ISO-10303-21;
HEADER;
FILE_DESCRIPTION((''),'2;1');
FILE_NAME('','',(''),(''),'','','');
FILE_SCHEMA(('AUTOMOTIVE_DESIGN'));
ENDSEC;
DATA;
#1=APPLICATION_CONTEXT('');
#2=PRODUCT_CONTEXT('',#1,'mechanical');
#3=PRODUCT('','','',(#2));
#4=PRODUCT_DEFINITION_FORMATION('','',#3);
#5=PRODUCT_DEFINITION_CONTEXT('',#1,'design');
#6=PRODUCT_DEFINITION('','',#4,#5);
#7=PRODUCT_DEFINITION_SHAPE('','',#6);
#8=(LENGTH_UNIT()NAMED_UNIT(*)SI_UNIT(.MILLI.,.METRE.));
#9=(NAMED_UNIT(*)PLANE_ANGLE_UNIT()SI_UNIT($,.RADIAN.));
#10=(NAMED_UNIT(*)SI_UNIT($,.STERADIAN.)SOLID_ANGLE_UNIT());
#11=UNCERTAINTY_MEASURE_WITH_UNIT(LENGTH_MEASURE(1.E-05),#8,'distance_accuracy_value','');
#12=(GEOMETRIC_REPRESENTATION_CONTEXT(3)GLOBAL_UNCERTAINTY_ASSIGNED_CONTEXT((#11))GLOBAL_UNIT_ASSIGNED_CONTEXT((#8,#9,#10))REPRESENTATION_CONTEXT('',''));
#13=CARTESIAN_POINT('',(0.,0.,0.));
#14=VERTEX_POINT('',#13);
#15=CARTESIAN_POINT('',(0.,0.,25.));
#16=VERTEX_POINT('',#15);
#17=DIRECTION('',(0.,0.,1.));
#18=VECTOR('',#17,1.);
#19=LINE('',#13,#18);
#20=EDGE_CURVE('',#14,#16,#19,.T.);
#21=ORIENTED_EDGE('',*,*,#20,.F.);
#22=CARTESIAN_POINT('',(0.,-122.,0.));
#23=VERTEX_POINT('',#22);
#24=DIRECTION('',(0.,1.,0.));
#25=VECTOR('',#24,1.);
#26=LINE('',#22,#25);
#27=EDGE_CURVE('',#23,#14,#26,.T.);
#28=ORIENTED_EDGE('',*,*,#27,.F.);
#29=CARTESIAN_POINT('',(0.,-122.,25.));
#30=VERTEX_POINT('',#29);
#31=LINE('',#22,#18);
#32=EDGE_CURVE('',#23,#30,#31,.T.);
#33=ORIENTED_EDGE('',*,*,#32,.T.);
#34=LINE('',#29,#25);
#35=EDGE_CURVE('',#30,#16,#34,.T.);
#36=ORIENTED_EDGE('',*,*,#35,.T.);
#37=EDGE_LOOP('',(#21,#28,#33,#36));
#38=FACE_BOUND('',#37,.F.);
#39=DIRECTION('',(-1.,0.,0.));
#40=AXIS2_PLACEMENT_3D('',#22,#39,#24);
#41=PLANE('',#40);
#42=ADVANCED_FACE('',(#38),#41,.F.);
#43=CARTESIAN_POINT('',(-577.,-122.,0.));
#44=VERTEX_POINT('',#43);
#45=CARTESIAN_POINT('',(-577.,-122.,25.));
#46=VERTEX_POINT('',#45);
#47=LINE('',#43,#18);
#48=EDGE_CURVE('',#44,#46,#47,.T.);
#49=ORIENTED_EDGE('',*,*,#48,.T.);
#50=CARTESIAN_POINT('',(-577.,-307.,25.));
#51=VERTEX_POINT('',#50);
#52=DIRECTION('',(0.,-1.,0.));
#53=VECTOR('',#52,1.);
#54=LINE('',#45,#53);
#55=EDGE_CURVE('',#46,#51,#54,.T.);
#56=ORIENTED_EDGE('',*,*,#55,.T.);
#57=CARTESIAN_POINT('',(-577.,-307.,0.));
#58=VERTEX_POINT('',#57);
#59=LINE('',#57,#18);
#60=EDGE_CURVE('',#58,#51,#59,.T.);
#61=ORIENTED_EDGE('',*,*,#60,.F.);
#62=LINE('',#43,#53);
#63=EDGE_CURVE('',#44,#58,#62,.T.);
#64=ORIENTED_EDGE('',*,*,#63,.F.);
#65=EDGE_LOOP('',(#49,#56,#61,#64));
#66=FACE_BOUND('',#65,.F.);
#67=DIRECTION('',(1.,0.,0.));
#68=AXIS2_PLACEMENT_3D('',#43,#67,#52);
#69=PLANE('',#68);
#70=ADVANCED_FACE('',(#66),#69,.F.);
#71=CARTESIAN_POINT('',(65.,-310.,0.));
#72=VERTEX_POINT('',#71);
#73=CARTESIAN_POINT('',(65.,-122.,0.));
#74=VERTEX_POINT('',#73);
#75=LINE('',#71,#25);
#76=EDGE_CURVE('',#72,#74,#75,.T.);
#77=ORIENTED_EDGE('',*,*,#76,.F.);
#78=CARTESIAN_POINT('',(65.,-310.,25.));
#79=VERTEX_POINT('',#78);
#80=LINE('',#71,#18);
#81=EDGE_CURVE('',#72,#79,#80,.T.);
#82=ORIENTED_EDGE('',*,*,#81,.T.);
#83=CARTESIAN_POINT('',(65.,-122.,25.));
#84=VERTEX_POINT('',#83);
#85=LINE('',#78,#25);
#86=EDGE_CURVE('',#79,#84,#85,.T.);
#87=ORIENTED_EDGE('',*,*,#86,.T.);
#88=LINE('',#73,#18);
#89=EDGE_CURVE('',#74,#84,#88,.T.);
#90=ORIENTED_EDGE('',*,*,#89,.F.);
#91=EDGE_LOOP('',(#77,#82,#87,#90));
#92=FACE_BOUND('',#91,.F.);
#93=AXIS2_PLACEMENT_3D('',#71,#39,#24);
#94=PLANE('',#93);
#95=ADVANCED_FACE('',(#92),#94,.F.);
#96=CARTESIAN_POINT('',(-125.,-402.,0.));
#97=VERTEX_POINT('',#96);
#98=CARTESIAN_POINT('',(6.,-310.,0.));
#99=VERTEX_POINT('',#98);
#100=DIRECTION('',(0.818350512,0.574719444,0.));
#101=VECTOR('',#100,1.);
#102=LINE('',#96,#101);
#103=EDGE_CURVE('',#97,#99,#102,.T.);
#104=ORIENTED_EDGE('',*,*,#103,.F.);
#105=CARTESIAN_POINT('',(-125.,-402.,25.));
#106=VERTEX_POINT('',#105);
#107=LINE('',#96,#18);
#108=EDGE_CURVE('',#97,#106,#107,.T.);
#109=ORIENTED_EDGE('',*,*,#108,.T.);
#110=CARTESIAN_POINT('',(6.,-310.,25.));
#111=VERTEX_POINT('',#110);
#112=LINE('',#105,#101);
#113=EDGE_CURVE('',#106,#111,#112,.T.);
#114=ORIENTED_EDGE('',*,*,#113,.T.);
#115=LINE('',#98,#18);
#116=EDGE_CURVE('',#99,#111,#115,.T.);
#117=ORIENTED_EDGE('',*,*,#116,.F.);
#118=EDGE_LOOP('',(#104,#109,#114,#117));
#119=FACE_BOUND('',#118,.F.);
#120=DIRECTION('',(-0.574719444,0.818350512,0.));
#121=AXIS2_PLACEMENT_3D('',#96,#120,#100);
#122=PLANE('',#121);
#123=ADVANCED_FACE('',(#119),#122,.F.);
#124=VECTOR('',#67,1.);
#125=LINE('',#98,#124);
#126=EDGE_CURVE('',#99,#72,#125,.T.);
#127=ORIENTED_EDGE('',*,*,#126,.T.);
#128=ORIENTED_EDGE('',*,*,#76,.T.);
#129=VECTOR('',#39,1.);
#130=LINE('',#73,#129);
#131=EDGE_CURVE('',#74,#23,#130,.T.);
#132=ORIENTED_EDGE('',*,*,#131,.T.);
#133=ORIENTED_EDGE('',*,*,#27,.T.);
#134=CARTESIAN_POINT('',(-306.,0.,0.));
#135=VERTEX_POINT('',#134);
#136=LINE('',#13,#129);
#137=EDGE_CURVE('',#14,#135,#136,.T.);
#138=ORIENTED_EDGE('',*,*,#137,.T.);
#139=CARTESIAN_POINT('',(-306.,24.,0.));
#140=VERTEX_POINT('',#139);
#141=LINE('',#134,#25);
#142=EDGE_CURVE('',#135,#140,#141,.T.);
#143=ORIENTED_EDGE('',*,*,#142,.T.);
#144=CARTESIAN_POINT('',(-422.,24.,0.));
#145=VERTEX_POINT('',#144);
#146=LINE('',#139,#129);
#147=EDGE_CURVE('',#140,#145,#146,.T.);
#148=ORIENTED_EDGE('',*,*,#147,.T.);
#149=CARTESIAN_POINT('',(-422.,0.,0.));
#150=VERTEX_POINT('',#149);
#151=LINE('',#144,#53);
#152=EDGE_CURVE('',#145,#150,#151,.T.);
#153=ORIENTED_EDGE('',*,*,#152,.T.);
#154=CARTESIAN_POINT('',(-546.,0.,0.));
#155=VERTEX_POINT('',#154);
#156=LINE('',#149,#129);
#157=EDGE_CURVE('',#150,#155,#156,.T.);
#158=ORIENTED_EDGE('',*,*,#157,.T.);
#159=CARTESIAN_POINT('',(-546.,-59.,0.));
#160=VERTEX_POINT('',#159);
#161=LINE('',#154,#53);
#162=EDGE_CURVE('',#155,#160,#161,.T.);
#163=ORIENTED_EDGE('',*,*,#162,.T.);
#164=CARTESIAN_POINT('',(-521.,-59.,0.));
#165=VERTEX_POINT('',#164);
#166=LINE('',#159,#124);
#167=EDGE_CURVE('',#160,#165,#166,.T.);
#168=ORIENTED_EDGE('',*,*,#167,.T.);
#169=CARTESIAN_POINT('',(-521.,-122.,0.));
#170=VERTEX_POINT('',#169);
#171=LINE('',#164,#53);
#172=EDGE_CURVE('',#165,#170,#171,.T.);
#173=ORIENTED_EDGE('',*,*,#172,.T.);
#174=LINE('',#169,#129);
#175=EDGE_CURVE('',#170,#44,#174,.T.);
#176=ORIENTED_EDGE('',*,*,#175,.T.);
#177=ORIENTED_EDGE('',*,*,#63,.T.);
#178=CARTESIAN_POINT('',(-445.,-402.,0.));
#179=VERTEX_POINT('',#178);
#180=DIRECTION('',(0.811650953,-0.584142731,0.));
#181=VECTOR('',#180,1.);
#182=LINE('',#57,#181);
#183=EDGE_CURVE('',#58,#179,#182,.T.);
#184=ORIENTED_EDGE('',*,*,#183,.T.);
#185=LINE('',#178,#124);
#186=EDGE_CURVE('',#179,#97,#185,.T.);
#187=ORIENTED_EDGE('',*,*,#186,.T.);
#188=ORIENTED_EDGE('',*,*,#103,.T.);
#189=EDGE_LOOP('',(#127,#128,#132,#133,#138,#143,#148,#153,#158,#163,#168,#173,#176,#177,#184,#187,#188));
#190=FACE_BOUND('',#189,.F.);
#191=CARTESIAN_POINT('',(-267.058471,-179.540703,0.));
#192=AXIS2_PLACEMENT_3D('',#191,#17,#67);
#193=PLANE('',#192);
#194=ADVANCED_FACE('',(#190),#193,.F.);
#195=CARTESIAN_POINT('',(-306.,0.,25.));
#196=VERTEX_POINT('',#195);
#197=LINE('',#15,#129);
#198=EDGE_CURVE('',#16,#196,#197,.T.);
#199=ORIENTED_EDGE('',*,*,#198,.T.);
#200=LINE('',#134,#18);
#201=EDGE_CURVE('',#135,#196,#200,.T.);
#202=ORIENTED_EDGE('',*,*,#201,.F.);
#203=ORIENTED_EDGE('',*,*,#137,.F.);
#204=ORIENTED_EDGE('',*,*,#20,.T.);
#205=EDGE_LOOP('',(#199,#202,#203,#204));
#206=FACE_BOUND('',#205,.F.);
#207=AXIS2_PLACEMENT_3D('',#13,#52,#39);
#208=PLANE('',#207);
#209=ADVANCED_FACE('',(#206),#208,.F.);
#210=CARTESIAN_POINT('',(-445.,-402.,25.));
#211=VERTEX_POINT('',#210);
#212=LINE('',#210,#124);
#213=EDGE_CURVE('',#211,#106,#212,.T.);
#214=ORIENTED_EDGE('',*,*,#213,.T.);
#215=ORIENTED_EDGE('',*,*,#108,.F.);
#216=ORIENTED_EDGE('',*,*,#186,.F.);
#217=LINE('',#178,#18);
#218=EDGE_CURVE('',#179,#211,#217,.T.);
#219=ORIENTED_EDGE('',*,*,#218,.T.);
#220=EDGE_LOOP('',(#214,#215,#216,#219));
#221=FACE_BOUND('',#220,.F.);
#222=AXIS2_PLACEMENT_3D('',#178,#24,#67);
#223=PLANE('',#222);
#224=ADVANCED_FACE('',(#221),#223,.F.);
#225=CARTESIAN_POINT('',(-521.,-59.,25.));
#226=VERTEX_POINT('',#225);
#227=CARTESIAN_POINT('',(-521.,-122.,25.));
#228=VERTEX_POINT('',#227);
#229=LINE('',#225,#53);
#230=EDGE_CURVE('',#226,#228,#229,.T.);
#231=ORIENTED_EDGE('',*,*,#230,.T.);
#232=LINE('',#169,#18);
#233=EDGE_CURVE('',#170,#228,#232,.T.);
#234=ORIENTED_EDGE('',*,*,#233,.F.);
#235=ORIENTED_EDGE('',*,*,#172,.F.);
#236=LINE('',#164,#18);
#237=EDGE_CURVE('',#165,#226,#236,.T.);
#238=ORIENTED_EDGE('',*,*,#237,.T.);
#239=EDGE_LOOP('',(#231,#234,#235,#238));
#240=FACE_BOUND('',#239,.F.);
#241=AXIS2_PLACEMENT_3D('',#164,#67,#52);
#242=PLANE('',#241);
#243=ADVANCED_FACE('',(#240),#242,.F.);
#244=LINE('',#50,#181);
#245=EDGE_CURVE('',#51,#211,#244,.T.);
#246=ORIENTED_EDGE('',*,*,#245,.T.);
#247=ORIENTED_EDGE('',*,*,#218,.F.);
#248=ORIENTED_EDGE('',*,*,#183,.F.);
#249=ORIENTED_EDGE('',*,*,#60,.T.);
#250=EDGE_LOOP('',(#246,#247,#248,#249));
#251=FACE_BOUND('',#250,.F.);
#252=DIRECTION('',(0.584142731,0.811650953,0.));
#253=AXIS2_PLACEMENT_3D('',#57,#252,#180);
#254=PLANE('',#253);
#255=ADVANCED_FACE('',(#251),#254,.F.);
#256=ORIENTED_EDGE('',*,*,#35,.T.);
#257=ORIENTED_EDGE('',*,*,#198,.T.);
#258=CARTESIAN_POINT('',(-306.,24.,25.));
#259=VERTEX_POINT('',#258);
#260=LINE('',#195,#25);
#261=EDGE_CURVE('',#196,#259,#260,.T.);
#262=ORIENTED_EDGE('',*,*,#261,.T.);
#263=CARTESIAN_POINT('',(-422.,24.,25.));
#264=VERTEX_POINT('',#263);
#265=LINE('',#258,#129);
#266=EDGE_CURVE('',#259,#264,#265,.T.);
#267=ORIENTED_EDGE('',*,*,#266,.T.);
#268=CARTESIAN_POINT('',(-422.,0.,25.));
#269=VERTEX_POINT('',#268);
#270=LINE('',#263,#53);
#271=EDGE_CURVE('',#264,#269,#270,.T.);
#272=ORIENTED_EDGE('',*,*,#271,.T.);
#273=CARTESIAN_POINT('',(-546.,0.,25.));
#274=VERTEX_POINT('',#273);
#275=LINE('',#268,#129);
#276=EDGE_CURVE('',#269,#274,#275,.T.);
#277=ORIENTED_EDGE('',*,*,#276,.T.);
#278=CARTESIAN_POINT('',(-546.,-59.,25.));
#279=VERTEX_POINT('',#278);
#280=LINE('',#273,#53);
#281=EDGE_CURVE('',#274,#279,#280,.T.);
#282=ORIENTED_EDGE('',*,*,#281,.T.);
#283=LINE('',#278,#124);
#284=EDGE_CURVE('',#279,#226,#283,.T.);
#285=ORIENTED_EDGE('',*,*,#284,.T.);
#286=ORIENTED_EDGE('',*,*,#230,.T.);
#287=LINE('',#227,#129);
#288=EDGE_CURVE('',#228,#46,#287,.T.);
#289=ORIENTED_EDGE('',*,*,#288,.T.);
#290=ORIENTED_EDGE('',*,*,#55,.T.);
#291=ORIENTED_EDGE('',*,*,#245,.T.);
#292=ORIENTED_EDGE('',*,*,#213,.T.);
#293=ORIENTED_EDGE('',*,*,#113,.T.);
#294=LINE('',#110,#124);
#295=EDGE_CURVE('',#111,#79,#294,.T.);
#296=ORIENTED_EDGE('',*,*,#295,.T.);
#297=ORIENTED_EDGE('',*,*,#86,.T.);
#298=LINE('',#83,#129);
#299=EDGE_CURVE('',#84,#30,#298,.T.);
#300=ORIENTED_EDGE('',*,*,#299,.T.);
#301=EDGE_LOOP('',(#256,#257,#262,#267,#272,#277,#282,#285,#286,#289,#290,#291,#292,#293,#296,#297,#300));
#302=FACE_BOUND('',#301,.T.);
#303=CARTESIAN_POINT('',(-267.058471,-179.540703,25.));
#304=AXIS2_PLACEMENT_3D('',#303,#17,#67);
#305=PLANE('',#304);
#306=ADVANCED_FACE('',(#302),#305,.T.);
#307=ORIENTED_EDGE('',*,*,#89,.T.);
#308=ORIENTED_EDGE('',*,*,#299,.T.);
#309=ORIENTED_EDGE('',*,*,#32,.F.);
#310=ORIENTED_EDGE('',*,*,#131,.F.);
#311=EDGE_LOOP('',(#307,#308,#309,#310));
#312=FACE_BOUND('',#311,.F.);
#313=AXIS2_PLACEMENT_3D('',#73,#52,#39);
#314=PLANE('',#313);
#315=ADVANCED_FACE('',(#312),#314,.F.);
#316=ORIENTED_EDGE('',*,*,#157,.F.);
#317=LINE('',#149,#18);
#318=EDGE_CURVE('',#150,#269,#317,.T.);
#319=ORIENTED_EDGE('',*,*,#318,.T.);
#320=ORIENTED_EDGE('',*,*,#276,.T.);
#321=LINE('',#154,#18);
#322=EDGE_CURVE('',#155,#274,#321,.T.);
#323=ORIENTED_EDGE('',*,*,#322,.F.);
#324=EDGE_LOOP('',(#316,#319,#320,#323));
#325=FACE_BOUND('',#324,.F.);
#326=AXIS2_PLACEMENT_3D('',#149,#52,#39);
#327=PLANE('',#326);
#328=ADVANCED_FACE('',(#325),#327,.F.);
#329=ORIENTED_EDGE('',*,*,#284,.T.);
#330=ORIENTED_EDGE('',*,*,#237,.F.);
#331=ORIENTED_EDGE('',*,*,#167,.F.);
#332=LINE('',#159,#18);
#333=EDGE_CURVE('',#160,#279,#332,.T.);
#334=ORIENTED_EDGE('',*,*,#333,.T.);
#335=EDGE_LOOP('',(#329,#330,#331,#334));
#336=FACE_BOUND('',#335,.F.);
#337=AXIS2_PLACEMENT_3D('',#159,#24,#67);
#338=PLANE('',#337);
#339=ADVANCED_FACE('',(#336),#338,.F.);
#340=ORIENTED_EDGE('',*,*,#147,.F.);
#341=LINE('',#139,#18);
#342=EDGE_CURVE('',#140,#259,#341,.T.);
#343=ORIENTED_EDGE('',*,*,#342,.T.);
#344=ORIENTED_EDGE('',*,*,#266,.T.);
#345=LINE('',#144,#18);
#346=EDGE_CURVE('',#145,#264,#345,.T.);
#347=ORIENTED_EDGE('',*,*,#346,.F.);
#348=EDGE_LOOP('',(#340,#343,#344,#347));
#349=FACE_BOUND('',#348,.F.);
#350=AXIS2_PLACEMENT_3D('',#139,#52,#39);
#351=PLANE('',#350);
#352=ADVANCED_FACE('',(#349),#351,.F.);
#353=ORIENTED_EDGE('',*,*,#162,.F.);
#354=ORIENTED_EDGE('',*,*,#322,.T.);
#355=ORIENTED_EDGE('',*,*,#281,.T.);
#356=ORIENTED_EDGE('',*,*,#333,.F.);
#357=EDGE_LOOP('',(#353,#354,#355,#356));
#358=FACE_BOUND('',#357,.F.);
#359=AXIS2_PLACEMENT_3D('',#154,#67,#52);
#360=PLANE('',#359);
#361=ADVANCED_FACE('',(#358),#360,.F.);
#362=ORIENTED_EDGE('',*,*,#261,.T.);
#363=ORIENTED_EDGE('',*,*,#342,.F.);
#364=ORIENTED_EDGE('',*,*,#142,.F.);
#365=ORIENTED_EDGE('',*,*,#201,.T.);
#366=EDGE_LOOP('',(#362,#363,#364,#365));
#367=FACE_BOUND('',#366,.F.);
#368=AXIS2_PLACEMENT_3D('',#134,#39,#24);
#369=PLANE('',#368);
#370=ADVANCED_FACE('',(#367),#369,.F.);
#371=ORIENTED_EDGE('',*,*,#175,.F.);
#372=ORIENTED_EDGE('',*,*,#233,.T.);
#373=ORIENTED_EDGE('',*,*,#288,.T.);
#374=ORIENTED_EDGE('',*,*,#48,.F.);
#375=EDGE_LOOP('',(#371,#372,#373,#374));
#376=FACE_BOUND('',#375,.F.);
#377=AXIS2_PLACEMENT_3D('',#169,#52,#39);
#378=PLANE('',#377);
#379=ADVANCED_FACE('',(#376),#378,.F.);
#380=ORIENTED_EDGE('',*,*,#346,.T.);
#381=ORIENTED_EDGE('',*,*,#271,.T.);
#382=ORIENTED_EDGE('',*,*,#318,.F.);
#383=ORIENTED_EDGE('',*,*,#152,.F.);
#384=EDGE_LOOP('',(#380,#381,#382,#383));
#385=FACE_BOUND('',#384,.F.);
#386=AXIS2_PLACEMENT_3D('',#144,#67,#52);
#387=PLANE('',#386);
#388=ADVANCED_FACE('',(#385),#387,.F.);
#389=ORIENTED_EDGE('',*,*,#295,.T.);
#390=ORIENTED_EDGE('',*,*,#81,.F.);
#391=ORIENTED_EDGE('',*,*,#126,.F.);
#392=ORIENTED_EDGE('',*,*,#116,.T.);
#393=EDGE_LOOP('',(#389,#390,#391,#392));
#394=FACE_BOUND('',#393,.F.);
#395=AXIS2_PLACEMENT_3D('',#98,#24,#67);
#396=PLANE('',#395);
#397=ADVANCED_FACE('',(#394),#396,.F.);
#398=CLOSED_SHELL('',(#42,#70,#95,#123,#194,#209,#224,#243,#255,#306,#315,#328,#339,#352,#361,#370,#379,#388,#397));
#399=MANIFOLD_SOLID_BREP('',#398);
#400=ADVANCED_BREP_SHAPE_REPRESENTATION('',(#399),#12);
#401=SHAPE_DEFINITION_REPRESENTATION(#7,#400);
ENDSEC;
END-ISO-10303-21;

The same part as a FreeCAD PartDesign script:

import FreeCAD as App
import Part
import Sketcher
Q = App.Units.Quantity

doc = App.newDocument("Part")
body = doc.addObject("PartDesign::Body", "Body")

# Sketch on XY plane
sketch1 = doc.addObject("Sketcher::SketchObject", "Sketch")
body.addObject(sketch1)
sketch1.AttachmentSupport = (doc.XY_Plane, [""])
sketch1.MapMode = "FlatFace"
sketch1.addGeometry([
    Part.LineSegment(App.Vector(-422, 0, 0), App.Vector(-546, 0, 0)),  # 0
    Part.LineSegment(App.Vector(-546, 0, 0), App.Vector(-546, -59, 0)),  # 1
    Part.LineSegment(App.Vector(-546, -59, 0), App.Vector(-521, -59, 0)),  # 2
    Part.LineSegment(App.Vector(-521, -59, 0), App.Vector(-521, -122, 0)),  # 3
    Part.LineSegment(App.Vector(-521, -122, 0), App.Vector(-577, -122, 0)),  # 4
    Part.LineSegment(App.Vector(-577, -122, 0), App.Vector(-577, -307, 0)),  # 5
    Part.LineSegment(App.Vector(-577, -307, 0), App.Vector(-445, -402, 0)),  # 6
    Part.LineSegment(App.Vector(-445, -402, 0), App.Vector(-125, -402, 0)),  # 7
    Part.LineSegment(App.Vector(-125, -402, 0), App.Vector(6, -310, 0)),  # 8
    Part.LineSegment(App.Vector(6, -310, 0), App.Vector(65, -310, 0)),  # 9
    Part.LineSegment(App.Vector(65, -310, 0), App.Vector(65, -122, 0)),  # 10
    Part.LineSegment(App.Vector(65, -122, 0), App.Vector(0, -122, 0)),  # 11
    Part.LineSegment(App.Vector(0, -122, 0), App.Vector(0, 0, 0)),  # 12
    Part.LineSegment(App.Vector(0, 0, 0), App.Vector(-306, 0, 0)),  # 13
    Part.LineSegment(App.Vector(-306, 0, 0), App.Vector(-306, 24, 0)),  # 14
    Part.LineSegment(App.Vector(-306, 24, 0), App.Vector(-422, 24, 0)),  # 15
    Part.LineSegment(App.Vector(-422, 24, 0), App.Vector(-422, 0, 0)),  # 16
], False)
sketch1.addConstraint([
    Sketcher.Constraint("Coincident", 0, 2, 1, 1),
    Sketcher.Constraint("Coincident", 1, 2, 2, 1),
    Sketcher.Constraint("Coincident", 2, 2, 3, 1),
    Sketcher.Constraint("Coincident", 3, 2, 4, 1),
    Sketcher.Constraint("Coincident", 4, 2, 5, 1),
    Sketcher.Constraint("Coincident", 5, 2, 6, 1),
    Sketcher.Constraint("Coincident", 6, 2, 7, 1),
    Sketcher.Constraint("Coincident", 7, 2, 8, 1),
    Sketcher.Constraint("Coincident", 8, 2, 9, 1),
    Sketcher.Constraint("Coincident", 9, 2, 10, 1),
    Sketcher.Constraint("Coincident", 10, 2, 11, 1),
    Sketcher.Constraint("Coincident", 11, 2, 12, 1),
    Sketcher.Constraint("Coincident", 12, 2, 13, 1),
    Sketcher.Constraint("Coincident", 13, 2, 14, 1),
    Sketcher.Constraint("Coincident", 14, 2, 15, 1),
    Sketcher.Constraint("Coincident", 15, 2, 16, 1),
    Sketcher.Constraint("Coincident", 16, 2, 0, 1),
    Sketcher.Constraint("Horizontal", 0),
    Sketcher.Constraint("Vertical", 1),
    Sketcher.Constraint("Horizontal", 2),
    Sketcher.Constraint("Vertical", 3),
    Sketcher.Constraint("Horizontal", 4),
    Sketcher.Constraint("Vertical", 5),
    Sketcher.Constraint("Horizontal", 7),
    Sketcher.Constraint("Horizontal", 9),
    Sketcher.Constraint("Vertical", 10),
    Sketcher.Constraint("Horizontal", 11),
    Sketcher.Constraint("Vertical", 12),
    Sketcher.Constraint("Horizontal", 13),
    Sketcher.Constraint("Vertical", 14),
    Sketcher.Constraint("Horizontal", 15),
    Sketcher.Constraint("Vertical", 16),
    Sketcher.Constraint("Coincident", 12, 2, -1, 1),
    Sketcher.Constraint("PointOnObject", 0, 2, -1),
    Sketcher.Constraint("Horizontal", 4, 2, 10, 2),
    Sketcher.Constraint("Equal", 9, 1),
    Sketcher.Constraint("DistanceX", 0, 2, 0, 1, Q("124 mm")),
    Sketcher.Constraint("DistanceX", 2, 1, 2, 2, Q("25 mm")),
    Sketcher.Constraint("DistanceX", 4, 2, 4, 1, Q("56 mm")),
    Sketcher.Constraint("DistanceX", 7, 1, 7, 2, Q("320 mm")),
    Sketcher.Constraint("DistanceX", 9, 1, 9, 2, Q("59 mm")),
    Sketcher.Constraint("DistanceX", 11, 2, 11, 1, Q("65 mm")),
    Sketcher.Constraint("DistanceX", 13, 2, 13, 1, Q("306 mm")),
    Sketcher.Constraint("DistanceX", 15, 2, 15, 1, Q("116 mm")),
    Sketcher.Constraint("DistanceY", 3, 2, 3, 1, Q("63 mm")),
    Sketcher.Constraint("DistanceY", 5, 2, 5, 1, Q("185 mm")),
    Sketcher.Constraint("DistanceY", 10, 1, 10, 2, Q("188 mm")),
    Sketcher.Constraint("DistanceY", 14, 1, 14, 2, Q("24 mm")),
    Sketcher.Constraint("DistanceX", 6, 2, -1, 1, Q("445 mm")),
    Sketcher.Constraint("DistanceY", 6, 2, -1, 1, Q("402 mm")),
])
pad1 = doc.addObject("PartDesign::Pad", "Pad")
body.addObject(pad1)
pad1.Profile = sketch1
pad1.Length = 25

doc.recompute()
